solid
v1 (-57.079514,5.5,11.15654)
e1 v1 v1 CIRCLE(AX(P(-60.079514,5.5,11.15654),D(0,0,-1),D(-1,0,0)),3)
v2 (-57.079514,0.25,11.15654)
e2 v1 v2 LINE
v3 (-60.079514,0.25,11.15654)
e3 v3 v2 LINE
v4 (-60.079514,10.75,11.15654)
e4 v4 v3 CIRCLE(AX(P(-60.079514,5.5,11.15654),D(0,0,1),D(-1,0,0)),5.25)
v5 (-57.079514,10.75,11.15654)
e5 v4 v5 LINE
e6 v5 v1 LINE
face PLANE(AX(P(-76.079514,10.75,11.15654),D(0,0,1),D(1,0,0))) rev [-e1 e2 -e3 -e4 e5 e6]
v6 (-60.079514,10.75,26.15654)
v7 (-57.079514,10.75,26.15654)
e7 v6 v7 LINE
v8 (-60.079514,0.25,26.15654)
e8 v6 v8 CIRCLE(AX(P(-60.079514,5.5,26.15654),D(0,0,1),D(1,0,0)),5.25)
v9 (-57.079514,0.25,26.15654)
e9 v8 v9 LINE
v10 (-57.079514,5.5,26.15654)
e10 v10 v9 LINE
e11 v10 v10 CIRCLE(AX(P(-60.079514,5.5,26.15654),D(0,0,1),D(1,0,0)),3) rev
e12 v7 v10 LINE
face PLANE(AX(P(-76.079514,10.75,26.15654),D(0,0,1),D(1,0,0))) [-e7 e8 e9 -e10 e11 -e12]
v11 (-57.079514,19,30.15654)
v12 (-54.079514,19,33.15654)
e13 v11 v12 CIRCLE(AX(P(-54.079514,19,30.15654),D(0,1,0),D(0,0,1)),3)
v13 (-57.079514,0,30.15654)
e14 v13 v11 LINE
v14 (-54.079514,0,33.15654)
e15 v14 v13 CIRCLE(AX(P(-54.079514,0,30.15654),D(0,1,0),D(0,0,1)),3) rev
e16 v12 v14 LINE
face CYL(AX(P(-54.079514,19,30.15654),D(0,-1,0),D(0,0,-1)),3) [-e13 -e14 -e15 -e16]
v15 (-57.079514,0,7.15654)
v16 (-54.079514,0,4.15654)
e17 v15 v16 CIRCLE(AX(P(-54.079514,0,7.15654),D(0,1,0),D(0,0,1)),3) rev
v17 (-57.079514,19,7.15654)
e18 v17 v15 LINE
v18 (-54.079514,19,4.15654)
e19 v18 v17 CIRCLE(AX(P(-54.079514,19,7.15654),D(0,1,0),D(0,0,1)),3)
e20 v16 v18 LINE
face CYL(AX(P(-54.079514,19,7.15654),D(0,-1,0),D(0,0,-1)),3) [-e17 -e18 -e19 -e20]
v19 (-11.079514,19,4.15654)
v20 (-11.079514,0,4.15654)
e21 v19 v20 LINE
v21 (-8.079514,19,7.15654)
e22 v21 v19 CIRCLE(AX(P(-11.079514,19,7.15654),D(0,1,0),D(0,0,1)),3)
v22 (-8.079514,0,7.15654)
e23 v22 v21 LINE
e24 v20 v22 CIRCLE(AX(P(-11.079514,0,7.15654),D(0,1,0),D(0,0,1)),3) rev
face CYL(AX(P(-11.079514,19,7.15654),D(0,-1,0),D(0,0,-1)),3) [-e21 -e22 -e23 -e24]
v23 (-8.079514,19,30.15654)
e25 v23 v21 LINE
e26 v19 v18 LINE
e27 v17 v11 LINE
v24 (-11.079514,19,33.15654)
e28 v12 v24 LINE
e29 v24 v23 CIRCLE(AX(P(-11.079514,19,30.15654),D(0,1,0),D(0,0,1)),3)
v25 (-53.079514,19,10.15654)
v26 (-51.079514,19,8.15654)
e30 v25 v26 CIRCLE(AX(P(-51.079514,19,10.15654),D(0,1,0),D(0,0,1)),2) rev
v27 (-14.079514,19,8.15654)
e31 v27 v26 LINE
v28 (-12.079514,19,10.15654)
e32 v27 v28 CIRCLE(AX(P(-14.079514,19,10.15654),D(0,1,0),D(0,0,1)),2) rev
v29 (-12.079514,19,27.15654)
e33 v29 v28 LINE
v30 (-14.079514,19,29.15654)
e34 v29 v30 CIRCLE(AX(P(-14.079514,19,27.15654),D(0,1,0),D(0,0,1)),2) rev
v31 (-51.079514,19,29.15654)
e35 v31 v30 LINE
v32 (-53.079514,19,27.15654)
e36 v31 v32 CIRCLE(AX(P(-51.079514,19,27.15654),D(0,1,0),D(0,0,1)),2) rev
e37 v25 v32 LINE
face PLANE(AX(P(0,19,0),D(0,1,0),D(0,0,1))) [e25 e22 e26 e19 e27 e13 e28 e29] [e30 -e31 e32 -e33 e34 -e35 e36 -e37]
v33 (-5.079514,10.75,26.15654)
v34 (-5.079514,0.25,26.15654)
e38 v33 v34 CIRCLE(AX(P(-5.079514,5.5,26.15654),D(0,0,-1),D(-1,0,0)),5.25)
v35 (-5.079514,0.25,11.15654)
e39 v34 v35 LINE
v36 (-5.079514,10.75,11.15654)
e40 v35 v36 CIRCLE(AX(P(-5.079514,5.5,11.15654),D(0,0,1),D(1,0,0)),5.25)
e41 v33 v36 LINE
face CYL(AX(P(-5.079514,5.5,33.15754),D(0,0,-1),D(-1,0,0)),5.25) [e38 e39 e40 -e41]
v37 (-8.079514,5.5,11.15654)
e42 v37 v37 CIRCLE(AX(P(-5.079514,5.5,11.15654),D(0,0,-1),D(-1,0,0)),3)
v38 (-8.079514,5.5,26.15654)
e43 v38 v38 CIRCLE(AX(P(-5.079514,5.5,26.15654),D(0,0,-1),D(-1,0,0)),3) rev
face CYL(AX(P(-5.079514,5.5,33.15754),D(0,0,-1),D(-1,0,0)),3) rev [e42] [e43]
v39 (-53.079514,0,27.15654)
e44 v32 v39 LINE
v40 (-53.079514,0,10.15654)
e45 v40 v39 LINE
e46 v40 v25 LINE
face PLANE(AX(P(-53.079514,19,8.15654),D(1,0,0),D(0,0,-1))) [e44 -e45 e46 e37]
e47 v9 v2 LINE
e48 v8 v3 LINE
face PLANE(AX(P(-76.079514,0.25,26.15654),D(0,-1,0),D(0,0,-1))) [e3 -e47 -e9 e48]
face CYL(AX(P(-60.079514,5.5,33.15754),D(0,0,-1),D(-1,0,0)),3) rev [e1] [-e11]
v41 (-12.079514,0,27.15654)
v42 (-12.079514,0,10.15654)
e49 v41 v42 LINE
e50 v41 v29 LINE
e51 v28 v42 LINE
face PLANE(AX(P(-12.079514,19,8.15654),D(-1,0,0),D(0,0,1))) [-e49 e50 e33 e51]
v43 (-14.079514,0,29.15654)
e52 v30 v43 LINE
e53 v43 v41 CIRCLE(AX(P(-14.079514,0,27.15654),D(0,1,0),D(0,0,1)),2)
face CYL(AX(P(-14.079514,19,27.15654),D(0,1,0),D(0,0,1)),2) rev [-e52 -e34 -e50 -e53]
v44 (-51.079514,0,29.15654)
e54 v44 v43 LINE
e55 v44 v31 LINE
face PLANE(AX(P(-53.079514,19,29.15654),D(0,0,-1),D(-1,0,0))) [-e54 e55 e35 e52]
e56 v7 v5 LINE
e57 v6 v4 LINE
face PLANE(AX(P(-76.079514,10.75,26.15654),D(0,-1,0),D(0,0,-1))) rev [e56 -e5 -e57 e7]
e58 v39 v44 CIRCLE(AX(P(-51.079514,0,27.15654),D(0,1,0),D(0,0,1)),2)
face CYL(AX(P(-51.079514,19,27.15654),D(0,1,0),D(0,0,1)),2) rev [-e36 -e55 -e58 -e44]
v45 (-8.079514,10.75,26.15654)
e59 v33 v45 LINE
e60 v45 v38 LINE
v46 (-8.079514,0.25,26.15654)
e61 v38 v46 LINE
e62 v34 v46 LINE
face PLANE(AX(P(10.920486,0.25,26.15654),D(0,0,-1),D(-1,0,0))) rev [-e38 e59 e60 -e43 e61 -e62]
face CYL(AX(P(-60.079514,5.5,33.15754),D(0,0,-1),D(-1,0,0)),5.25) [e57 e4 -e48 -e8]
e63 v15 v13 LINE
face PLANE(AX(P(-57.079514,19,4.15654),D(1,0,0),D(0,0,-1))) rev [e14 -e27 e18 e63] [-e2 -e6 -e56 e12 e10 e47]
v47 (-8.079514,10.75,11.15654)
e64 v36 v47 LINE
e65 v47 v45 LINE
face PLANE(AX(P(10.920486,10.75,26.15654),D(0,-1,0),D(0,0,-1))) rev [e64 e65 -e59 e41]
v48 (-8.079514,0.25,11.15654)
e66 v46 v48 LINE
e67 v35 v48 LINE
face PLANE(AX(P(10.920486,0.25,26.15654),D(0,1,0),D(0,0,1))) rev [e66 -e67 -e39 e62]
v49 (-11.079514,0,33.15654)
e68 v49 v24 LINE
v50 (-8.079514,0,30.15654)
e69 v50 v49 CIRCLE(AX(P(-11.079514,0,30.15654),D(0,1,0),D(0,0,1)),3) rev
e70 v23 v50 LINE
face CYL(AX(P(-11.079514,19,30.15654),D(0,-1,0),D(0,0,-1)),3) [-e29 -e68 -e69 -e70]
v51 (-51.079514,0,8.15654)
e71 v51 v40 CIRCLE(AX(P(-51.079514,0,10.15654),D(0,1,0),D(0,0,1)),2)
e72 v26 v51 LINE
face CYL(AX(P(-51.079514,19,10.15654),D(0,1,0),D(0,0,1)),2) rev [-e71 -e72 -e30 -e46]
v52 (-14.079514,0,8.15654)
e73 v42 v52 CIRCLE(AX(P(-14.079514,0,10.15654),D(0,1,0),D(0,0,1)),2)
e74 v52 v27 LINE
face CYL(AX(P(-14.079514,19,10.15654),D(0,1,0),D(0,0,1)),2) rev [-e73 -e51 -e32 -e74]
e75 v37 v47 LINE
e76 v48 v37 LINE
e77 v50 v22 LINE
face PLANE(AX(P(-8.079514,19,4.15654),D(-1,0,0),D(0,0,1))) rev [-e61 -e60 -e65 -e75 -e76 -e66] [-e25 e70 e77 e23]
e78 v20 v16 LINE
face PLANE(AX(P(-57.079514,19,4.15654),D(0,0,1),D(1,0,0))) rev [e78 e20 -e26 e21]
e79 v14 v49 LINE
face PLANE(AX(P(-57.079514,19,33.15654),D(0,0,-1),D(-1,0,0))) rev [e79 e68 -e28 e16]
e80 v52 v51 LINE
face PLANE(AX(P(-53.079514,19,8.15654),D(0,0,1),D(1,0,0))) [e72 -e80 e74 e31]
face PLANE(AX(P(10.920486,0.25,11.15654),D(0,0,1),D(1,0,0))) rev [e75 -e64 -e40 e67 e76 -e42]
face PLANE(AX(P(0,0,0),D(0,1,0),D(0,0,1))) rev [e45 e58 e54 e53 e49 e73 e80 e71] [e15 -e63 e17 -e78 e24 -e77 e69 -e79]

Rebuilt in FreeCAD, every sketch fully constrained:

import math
import FreeCAD as App
import Part
import Sketcher

V = App.Vector


def edges_at(feature, points):
    """Names of the edges that pass closest to the given points."""
    edges = feature.Shape.Edges
    near = lambda p: min(range(len(edges)), key=lambda i: edges[i].distToShape(Part.Vertex(*p))[0])
    return sorted({f"Edge{near(p) + 1}" for p in points})


def add_polygon(sketch, points):
    """Adds a closed chain of lines whose ends are joined by coincident constraints."""
    first, n = sketch.GeometryCount, len(points)
    for a, b in zip(points, points[1:] + points[:1]):
        sketch.addGeometry(Part.LineSegment(App.Vector(*a, 0), App.Vector(*b, 0)), False)
    for i in range(n):
        sketch.addConstraint(Sketcher.Constraint("Coincident", first + i, 2, first + (i + 1) % n, 1))

doc = App.newDocument("Part")
body = doc.addObject("PartDesign::Body", "Body")

sketch1 = body.newObject("Sketcher::SketchObject", "Sketch")
sketch1.AttachmentSupport = (doc.getObject("XZ_Plane"), [""])
sketch1.MapMode = "FlatFace"
add_polygon(sketch1, [(-57.079514, 4.15654), (-57.079514, 33.15654), (-8.079514, 33.15654), (-8.079514, 4.15654)])
add_polygon(sketch1, [(-12.079514, 29.15654), (-53.079514, 29.15654), (-53.079514, 8.15654), (-12.079514, 8.15654)])
sketch1.addConstraint([
    Sketcher.Constraint("Vertical", 0),
    Sketcher.Constraint("Horizontal", 1),
    Sketcher.Constraint("Vertical", 2),
    Sketcher.Constraint("Horizontal", 3),
    Sketcher.Constraint("Horizontal", 4),
    Sketcher.Constraint("Vertical", 5),
    Sketcher.Constraint("Horizontal", 6),
    Sketcher.Constraint("Vertical", 7),
    Sketcher.Constraint("DistanceX", 1, 1, 1, 2, 49.0),
    Sketcher.Constraint("DistanceX", 4, 2, 4, 1, 41.0),
    Sketcher.Constraint("DistanceY", 0, 1, 0, 2, 29.0),
    Sketcher.Constraint("DistanceY", 5, 2, 5, 1, 21.0),
    Sketcher.Constraint("DistanceX", 0, 2, 4, 2, 4.0),
    Sketcher.Constraint("DistanceY", 4, 2, 0, 2, 4.0),
    Sketcher.Constraint("DistanceY", -1, 1, 0, 2, 33.15654),
    Sketcher.Constraint("DistanceX", 0, 2, -1, 1, 57.079514),
])
pad1 = body.newObject("PartDesign::Pad", "Pad")
pad1.Profile = sketch1
pad1.Length = 19
pad1.Reversed = True
doc.recompute()

fillet = body.newObject("PartDesign::Fillet", "Fillet")
fillet.Base = (pad1, edges_at(pad1, [
    (-57.08, 9.5, 4.157),
    (-8.08, 9.5, 4.157),
    (-8.08, 9.5, 33.157),
    (-57.08, 9.5, 33.157),
]))
fillet.Radius = 3
doc.recompute()

fillet2 = body.newObject("PartDesign::Fillet", "Fillet001")
fillet2.Base = (fillet, edges_at(fillet, [
    (-53.08, 9.5, 8.157),
    (-53.08, 9.5, 29.157),
    (-12.08, 9.5, 29.157),
    (-12.08, 9.5, 8.157),
]))
fillet2.Radius = 2

sketch2 = body.newObject("Sketcher::SketchObject", "Sketch001")
sketch2.AttachmentSupport = (doc.getObject("YZ_Plane"), [""])
sketch2.MapMode = "FlatFace"
sketch2.AttachmentOffset = App.Placement(V(0, 0, -8.079514), App.Rotation())
add_polygon(sketch2, [(10.75, 26.15654), (0.25, 26.15654), (0.25, 11.15654), (10.75, 11.15654)])
sketch2.addConstraint([
    Sketcher.Constraint("Horizontal", 0),
    Sketcher.Constraint("Vertical", 1),
    Sketcher.Constraint("Horizontal", 2),
    Sketcher.Constraint("Vertical", 3),
    Sketcher.Constraint("DistanceY", 1, 2, 1, 1, 15.0),
    Sketcher.Constraint("DistanceX", 0, 2, 0, 1, 10.5),
    Sketcher.Constraint("DistanceX", -1, 1, 0, 2, 0.25),
    Sketcher.Constraint("DistanceY", -1, 1, 0, 2, 26.15654),
])
pad2 = body.newObject("PartDesign::Pad", "Pad001")
pad2.Profile = sketch2
pad2.Length = 19

sketch3 = body.newObject("Sketcher::SketchObject", "Sketch002")
sketch3.AttachmentSupport = (doc.getObject("YZ_Plane"), [""])
sketch3.MapMode = "FlatFace"
sketch3.AttachmentOffset = App.Placement(V(0, 0, -57.079514), App.Rotation())
add_polygon(sketch3, [(10.75, 11.15654), (0.25, 11.15654), (0.25, 26.15654), (10.75, 26.15654)])
sketch3.addConstraint([
    Sketcher.Constraint("Horizontal", 0),
    Sketcher.Constraint("Vertical", 1),
    Sketcher.Constraint("Horizontal", 2),
    Sketcher.Constraint("Vertical", 3),
    Sketcher.Constraint("DistanceY", 1, 1, 1, 2, 15.0),
    Sketcher.Constraint("DistanceX", 0, 2, 0, 1, 10.5),
    Sketcher.Constraint("DistanceX", -1, 1, 0, 2, 0.25),
    Sketcher.Constraint("DistanceY", -1, 1, 0, 2, 11.15654),
])
pad3 = body.newObject("PartDesign::Pad", "Pad002")
pad3.Profile = sketch3
pad3.Length = 19
pad3.Reversed = True

sketch4 = body.newObject("Sketcher::SketchObject", "Sketch003")
sketch4.AttachmentSupport = (doc.getObject("XY_Plane"), [""])
sketch4.MapMode = "FlatFace"
sketch4.AttachmentOffset = App.Placement(V(0, 0, 11.15654), App.Rotation())
sketch4.addGeometry(Part.Circle(V(-60.079514, 5.5, 0), V(0, 0, 1), 3), False)
sketch4.addConstraint([
    Sketcher.Constraint("Diameter", 0, 6.0),
    Sketcher.Constraint("DistanceY", -1, 1, 0, 3, 5.5),
    Sketcher.Constraint("DistanceX", 0, 3, -1, 1, 60.079514),
])
pocket1 = body.newObject("PartDesign::Pocket", "Pocket")
pocket1.Profile = sketch4
pocket1.Type = "UpToFirst"
pocket1.Reversed = True

sketch5 = body.newObject("Sketcher::SketchObject", "Sketch004")
sketch5.AttachmentSupport = (doc.getObject("XY_Plane"), [""])
sketch5.MapMode = "FlatFace"
sketch5.AttachmentOffset = App.Placement(V(0, 0, 11.15654), App.Rotation())
sketch5.addGeometry([
    Part.LineSegment(V(-60.079514, 0.25, 0), V(-76.079514, 0.25, 0)),
    Part.LineSegment(V(-76.079514, 0.25, 0), V(-76.079514, 10.75, 0)),
    Part.LineSegment(V(-76.079514, 10.75, 0), V(-60.079514, 10.75, 0)),
    Part.ArcOfCircle(Part.Circle(V(-60.079514, 5.5, 0), V(0, 0, 1), 5.25), math.radians(90), math.radians(270)),
], False)
sketch5.addConstraint([
    Sketcher.Constraint("Coincident", 0, 2, 1, 1),
    Sketcher.Constraint("Coincident", 1, 2, 2, 1),
    Sketcher.Constraint("Tangent", 2, 2, 3, 1),
    Sketcher.Constraint("Tangent", 3, 2, 0, 1),
    Sketcher.Constraint("Horizontal", 0),
    Sketcher.Constraint("Vertical", 1),
    Sketcher.Constraint("Horizontal", 2),
    Sketcher.Constraint("DistanceX", 0, 2, 0, 1, 16.0),
    Sketcher.Constraint("Radius", 3, 5.25),
    Sketcher.Constraint("DistanceY", -1, 1, 3, 3, 5.5),
    Sketcher.Constraint("DistanceX", 3, 3, -1, 1, 60.079514),
])
pocket2 = body.newObject("PartDesign::Pocket", "Pocket001")
pocket2.Profile = sketch5
pocket2.Type = "UpToFirst"
pocket2.Reversed = True

sketch6 = body.newObject("Sketcher::SketchObject", "Sketch005")
sketch6.AttachmentSupport = (doc.getObject("XY_Plane"), [""])
sketch6.MapMode = "FlatFace"
sketch6.AttachmentOffset = App.Placement(V(0, 0, 11.15654), App.Rotation())
sketch6.addGeometry(Part.Circle(V(-5.079514, 5.5, 0), V(0, 0, 1), 3), False)
sketch6.addConstraint([
    Sketcher.Constraint("Diameter", 0, 6.0),
    Sketcher.Constraint("DistanceY", -1, 1, 0, 3, 5.5),
    Sketcher.Constraint("DistanceX", 0, 3, -1, 1, 5.079514),
])
pocket3 = body.newObject("PartDesign::Pocket", "Pocket002")
pocket3.Profile = sketch6
pocket3.Type = "UpToFirst"
pocket3.Reversed = True

sketch7 = body.newObject("Sketcher::SketchObject", "Sketch006")
sketch7.AttachmentSupport = (doc.getObject("XY_Plane"), [""])
sketch7.MapMode = "FlatFace"
sketch7.AttachmentOffset = App.Placement(V(0, 0, 11.15654), App.Rotation())
sketch7.addGeometry([
    Part.LineSegment(V(10.920486, 0.25, 0), V(-5.079514, 0.25, 0)),
    Part.ArcOfCircle(Part.Circle(V(-5.079514, 5.5, 0), V(0, 0, 1), 5.25), math.radians(-90), math.radians(90)),
    Part.LineSegment(V(-5.079514, 10.75, 0), V(10.920486, 10.75, 0)),
    Part.LineSegment(V(10.920486, 10.75, 0), V(10.920486, 0.25, 0)),
], False)
sketch7.addConstraint([
    Sketcher.Constraint("Tangent", 0, 2, 1, 1),
    Sketcher.Constraint("Tangent", 1, 2, 2, 1),
    Sketcher.Constraint("Coincident", 2, 2, 3, 1),
    Sketcher.Constraint("Coincident", 3, 2, 0, 1),
    Sketcher.Constraint("Horizontal", 0),
    Sketcher.Constraint("Horizontal", 2),
    Sketcher.Constraint("Vertical", 3),
    Sketcher.Constraint("DistanceX", 0, 2, 0, 1, 16.0),
    Sketcher.Constraint("Radius", 1, 5.25),
    Sketcher.Constraint("DistanceY", -1, 1, 1, 3, 5.5),
    Sketcher.Constraint("DistanceX", 1, 3, -1, 1, 5.079514),
])
pocket4 = body.newObject("PartDesign::Pocket", "Pocket003")
pocket4.Profile = sketch7
pocket4.Type = "UpToFirst"
pocket4.Reversed = True

doc.recompute()
